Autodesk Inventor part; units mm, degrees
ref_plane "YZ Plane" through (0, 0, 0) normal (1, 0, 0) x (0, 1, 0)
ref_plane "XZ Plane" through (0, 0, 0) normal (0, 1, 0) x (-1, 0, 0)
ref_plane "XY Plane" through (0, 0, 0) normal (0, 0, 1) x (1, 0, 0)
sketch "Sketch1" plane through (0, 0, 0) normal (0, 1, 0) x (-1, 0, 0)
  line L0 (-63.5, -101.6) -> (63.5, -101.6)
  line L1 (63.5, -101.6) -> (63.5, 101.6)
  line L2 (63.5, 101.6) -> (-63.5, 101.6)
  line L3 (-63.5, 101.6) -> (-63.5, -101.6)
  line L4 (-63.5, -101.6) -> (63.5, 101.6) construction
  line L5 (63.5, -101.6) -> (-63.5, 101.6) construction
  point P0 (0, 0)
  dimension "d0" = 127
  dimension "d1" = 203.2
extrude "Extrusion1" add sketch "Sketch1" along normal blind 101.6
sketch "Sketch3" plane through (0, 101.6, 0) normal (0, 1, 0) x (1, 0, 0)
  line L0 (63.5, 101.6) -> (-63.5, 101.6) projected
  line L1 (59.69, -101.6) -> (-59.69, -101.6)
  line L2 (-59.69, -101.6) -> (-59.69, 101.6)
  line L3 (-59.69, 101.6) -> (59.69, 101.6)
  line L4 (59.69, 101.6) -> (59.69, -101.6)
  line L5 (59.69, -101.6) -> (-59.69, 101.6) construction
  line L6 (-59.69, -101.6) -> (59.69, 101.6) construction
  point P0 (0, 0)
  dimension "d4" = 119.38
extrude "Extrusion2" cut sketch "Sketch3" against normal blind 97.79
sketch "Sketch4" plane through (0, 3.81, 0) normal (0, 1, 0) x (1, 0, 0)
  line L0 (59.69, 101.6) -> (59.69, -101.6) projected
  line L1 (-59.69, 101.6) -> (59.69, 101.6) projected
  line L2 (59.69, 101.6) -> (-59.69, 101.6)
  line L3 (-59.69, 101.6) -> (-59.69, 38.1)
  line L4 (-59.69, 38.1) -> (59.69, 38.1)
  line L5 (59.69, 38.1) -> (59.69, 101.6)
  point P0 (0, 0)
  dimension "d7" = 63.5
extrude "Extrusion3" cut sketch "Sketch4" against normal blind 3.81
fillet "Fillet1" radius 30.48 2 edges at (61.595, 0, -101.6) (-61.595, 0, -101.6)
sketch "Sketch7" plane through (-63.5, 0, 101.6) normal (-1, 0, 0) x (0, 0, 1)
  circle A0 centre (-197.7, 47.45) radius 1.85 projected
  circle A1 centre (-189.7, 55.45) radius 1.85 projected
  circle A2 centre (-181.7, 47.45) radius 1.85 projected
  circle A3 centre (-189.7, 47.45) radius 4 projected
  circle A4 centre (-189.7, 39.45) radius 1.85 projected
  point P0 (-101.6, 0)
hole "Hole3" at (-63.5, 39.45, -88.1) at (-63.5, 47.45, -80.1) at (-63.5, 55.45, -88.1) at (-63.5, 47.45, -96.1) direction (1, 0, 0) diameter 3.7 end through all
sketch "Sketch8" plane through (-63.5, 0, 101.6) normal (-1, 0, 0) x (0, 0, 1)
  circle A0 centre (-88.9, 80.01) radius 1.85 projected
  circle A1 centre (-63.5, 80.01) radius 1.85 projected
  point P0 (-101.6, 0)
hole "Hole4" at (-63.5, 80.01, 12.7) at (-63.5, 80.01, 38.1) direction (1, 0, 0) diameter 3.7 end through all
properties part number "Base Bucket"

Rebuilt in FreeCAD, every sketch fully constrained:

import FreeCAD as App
import Part
import Sketcher
Q = App.Units.Quantity


def edges_at(feature, points):
    """Names of the edges that pass closest to the given points."""
    edges = feature.Shape.Edges
    near = lambda p: min(range(len(edges)), key=lambda i: edges[i].distToShape(Part.Vertex(*p))[0])
    return sorted({f"Edge{near(p) + 1}" for p in points})

doc = App.newDocument("Part")
body = doc.addObject("PartDesign::Body", "Body")

# Sketch on XZ plane
sketch1 = body.newObject("Sketcher::SketchObject", "Sketch")
sketch1.AttachmentSupport = (doc.getObject("XZ_Plane"), [""])
sketch1.MapMode = "FlatFace"
sketch1.addGeometry(Part.LineSegment(App.Vector(64, 102, 0), App.Vector(64, -102, 0)), False)
sketch1.addGeometry(Part.LineSegment(App.Vector(64, -102, 0), App.Vector(-64, -102, 0)), False)
sketch1.addGeometry(Part.LineSegment(App.Vector(-64, -102, 0), App.Vector(-64, 102, 0)), False)
sketch1.addGeometry(Part.LineSegment(App.Vector(-64, 102, 0), App.Vector(64, 102, 0)), False)
sketch1.addConstraint(Sketcher.Constraint("Coincident", 0, 2, 1, 1))
sketch1.addConstraint(Sketcher.Constraint("Coincident", 1, 2, 2, 1))
sketch1.addConstraint(Sketcher.Constraint("Coincident", 2, 2, 3, 1))
sketch1.addConstraint(Sketcher.Constraint("Coincident", 3, 2, 0, 1))
sketch1.addConstraint(Sketcher.Constraint("Vertical", 0))
sketch1.addConstraint(Sketcher.Constraint("Horizontal", 1))
sketch1.addConstraint(Sketcher.Constraint("Vertical", 2))
sketch1.addConstraint(Sketcher.Constraint("Horizontal", 3))
sketch1.addConstraint(Sketcher.Constraint("Symmetric", 0, 2, 2, 2, -1, 1))
sketch1.addConstraint(Sketcher.Constraint("DistanceX", 1, 2, 1, 1, Q("5 in")))
sketch1.addConstraint(Sketcher.Constraint("DistanceY", 0, 2, 0, 1, Q("8 in")))
pad1 = body.newObject("PartDesign::Pad", "Pad")
pad1.Profile = sketch1
pad1.Length = Q("4 in")
pad1.Reversed = True

# Sketch on XZ plane
sketch2 = body.newObject("Sketcher::SketchObject", "Sketch001")
sketch2.AttachmentSupport = (doc.getObject("XZ_Plane"), [""])
sketch2.MapMode = "FlatFace"
sketch2.AttachmentOffset = App.Placement(App.Vector(0, 0, -4 * 25.4), App.Rotation())
sketch2.addGeometry(Part.LineSegment(App.Vector(60, 102, 0), App.Vector(60, -102, 0)), False)
sketch2.addGeometry(Part.LineSegment(App.Vector(60, -102, 0), App.Vector(-60, -102, 0)), False)
sketch2.addGeometry(Part.LineSegment(App.Vector(-60, -102, 0), App.Vector(-60, 102, 0)), False)
sketch2.addGeometry(Part.LineSegment(App.Vector(-60, 102, 0), App.Vector(60, 102, 0)), False)
sketch2.addConstraint(Sketcher.Constraint("Coincident", 0, 2, 1, 1))
sketch2.addConstraint(Sketcher.Constraint("Coincident", 1, 2, 2, 1))
sketch2.addConstraint(Sketcher.Constraint("Coincident", 2, 2, 3, 1))
sketch2.addConstraint(Sketcher.Constraint("Coincident", 3, 2, 0, 1))
sketch2.addConstraint(Sketcher.Constraint("Vertical", 0))
sketch2.addConstraint(Sketcher.Constraint("Horizontal", 1))
sketch2.addConstraint(Sketcher.Constraint("Vertical", 2))
sketch2.addConstraint(Sketcher.Constraint("Horizontal", 3))
sketch2.addConstraint(Sketcher.Constraint("Symmetric", 0, 2, 2, 2, -1, 1))
sketch2.addConstraint(Sketcher.Constraint("DistanceX", 1, 2, 1, 1, Q("4.7 in")))
sketch2.addConstraint(Sketcher.Constraint("DistanceY", 0, 2, 0, 1, Q("8 in")))
pocket1 = body.newObject("PartDesign::Pocket", "Pocket")
pocket1.Profile = sketch2
pocket1.Length = Q("3.85 in")
pocket1.Reversed = True

# Sketch on XZ plane
sketch3 = body.newObject("Sketcher::SketchObject", "Sketch002")
sketch3.AttachmentSupport = (doc.getObject("XZ_Plane"), [""])
sketch3.MapMode = "FlatFace"
sketch3.AttachmentOffset = App.Placement(App.Vector(0, 0, -0.15 * 25.4), App.Rotation())
sketch3.addGeometry(Part.LineSegment(App.Vector(60, -38, 0), App.Vector(60, -102, 0)), False)
sketch3.addGeometry(Part.LineSegment(App.Vector(60, -102, 0), App.Vector(-60, -102, 0)), False)
sketch3.addGeometry(Part.LineSegment(App.Vector(-60, -102, 0), App.Vector(-60, -38, 0)), False)
sketch3.addGeometry(Part.LineSegment(App.Vector(-60, -38, 0), App.Vector(60, -38, 0)), False)
sketch3.addConstraint(Sketcher.Constraint("Coincident", 0, 2, 1, 1))
sketch3.addConstraint(Sketcher.Constraint("Coincident", 1, 2, 2, 1))
sketch3.addConstraint(Sketcher.Constraint("Coincident", 2, 2, 3, 1))
sketch3.addConstraint(Sketcher.Constraint("Coincident", 3, 2, 0, 1))
sketch3.addConstraint(Sketcher.Constraint("Vertical", 0))
sketch3.addConstraint(Sketcher.Constraint("Horizontal", 1))
sketch3.addConstraint(Sketcher.Constraint("Vertical", 2))
sketch3.addConstraint(Sketcher.Constraint("Horizontal", 3))
sketch3.addConstraint(Sketcher.Constraint("DistanceY", 0, 2, 0, 1, Q("2.5 in")))
sketch3.addConstraint(Sketcher.Constraint("DistanceX", 1, 2, 1, 1, Q("4.7 in")))
sketch3.addConstraint(Sketcher.Constraint("DistanceY", 0, 2, -1, 1, Q("4 in")))
sketch3.addConstraint(Sketcher.Constraint("DistanceX", -1, 1, 0, 2, Q("2.35 in")))
pocket2 = body.newObject("PartDesign::Pocket", "Pocket001")
pocket2.Profile = sketch3
pocket2.Length = Q("0.15 in")
pocket2.Reversed = True
doc.recompute()

fillet = body.newObject("PartDesign::Fillet", "Fillet")
fillet.Base = (pocket2, edges_at(pocket2, [(61.595, 0, -101.6), (-61.595, 0, -101.6)]))
fillet.Radius = Q("1.2 in")

# Sketch on YZ plane
sketch4 = body.newObject("Sketcher::SketchObject", "Sketch003")
sketch4.AttachmentSupport = (doc.getObject("YZ_Plane"), [""])
sketch4.MapMode = "FlatFace"
sketch4.AttachmentOffset = App.Placement(App.Vector(0, 0, -2.5 * 25.4), App.Rotation())
sketch4.addGeometry(Part.Circle(App.Vector(39.5, -88.1, 0), App.Vector(0, 0, 1), 1.9), False)
sketch4.addGeometry(Part.Circle(App.Vector(47.5, -80.1, 0), App.Vector(0, 0, 1), 1.9), False)
sketch4.addGeometry(Part.Circle(App.Vector(55.5, -88.1, 0), App.Vector(0, 0, 1), 1.9), False)
sketch4.addGeometry(Part.Circle(App.Vector(47.5, -96.1, 0), App.Vector(0, 0, 1), 1.9), False)
sketch4.addConstraint(Sketcher.Constraint("Equal", 0, 1))
sketch4.addConstraint(Sketcher.Constraint("Equal", 1, 2))
sketch4.addConstraint(Sketcher.Constraint("Equal", 2, 3))
sketch4.addConstraint(Sketcher.Constraint("Horizontal", 0, 3, 2, 3))
sketch4.addConstraint(Sketcher.Constraint("Vertical", 1, 3, 3, 3))
sketch4.addConstraint(Sketcher.Constraint("Diameter", 0, 3.7))
sketch4.addConstraint(Sketcher.Constraint("DistanceY", 0, 3, -1, 1, Q("3.4685 in")))
sketch4.addConstraint(Sketcher.Constraint("DistanceX", -1, 1, 1, 3, Q("1.8681 in")))
sketch4.addConstraint(Sketcher.Constraint("DistanceX", -1, 1, 0, 3, 39.45))
sketch4.addConstraint(Sketcher.Constraint("DistanceY", 1, 3, -1, 1, 80.1))
sketch4.addConstraint(Sketcher.Constraint("DistanceX", -1, 1, 2, 3, 55.45))
sketch4.addConstraint(Sketcher.Constraint("DistanceY", 3, 3, -1, 1, 96.1))
doc.recompute()
hole = body.newObject("PartDesign::Hole", "Hole")
hole.Profile = sketch4
hole.ThreadType = "None"
hole.Diameter = 3.7
hole.DepthType = "ThroughAll"
hole.Reversed = True

# Sketch on YZ plane
sketch5 = body.newObject("Sketcher::SketchObject", "Sketch004")
sketch5.AttachmentSupport = (doc.getObject("YZ_Plane"), [""])
sketch5.MapMode = "FlatFace"
sketch5.AttachmentOffset = App.Placement(App.Vector(0, 0, -2.5 * 25.4), App.Rotation())
sketch5.addGeometry(Part.Circle(App.Vector(80, 12.7, 0), App.Vector(0, 0, 1), 1.9), False)
sketch5.addGeometry(Part.Circle(App.Vector(80, 38.1, 0), App.Vector(0, 0, 1), 1.9), False)
sketch5.addConstraint(Sketcher.Constraint("Equal", 0, 1))
sketch5.addConstraint(Sketcher.Constraint("Vertical", 0, 3, 1, 3))
sketch5.addConstraint(Sketcher.Constraint("DistanceY", 0, 3, 1, 3, Q("1 in")))
sketch5.addConstraint(Sketcher.Constraint("DistanceY", -1, 1, 0, 3, Q("0.5 in")))
sketch5.addConstraint(Sketcher.Constraint("Diameter", 0, 3.7))
sketch5.addConstraint(Sketcher.Constraint("DistanceX", -1, 1, 0, 3, Q("3.15 in")))
doc.recompute()
hole2 = body.newObject("PartDesign::Hole", "Hole001")
hole2.Profile = sketch5
hole2.ThreadType = "None"
hole2.Diameter = 3.7
hole2.DepthType = "ThroughAll"
hole2.Reversed = True

doc.recompute()
